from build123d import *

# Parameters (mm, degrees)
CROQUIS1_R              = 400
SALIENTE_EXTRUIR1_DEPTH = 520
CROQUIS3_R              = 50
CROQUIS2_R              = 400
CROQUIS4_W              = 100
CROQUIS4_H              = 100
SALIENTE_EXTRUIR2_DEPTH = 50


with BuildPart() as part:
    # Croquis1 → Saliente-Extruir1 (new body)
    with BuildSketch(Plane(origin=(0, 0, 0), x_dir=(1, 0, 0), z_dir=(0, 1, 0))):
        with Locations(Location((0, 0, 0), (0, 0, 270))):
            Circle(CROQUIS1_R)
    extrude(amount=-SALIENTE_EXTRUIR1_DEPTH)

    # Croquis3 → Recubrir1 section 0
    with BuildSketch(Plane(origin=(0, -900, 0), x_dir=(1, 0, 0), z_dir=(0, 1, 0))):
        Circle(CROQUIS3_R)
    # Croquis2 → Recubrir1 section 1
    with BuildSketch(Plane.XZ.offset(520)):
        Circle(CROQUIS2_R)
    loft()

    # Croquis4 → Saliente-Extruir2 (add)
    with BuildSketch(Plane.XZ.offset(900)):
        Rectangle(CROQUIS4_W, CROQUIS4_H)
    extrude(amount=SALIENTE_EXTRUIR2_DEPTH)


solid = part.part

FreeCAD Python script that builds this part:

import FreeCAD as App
import Part
import Sketcher
Q = App.Units.Quantity


def add_polygon(sketch, points):
    """Adds a closed chain of lines whose ends are joined by coincident constraints."""
    first, n = sketch.GeometryCount, len(points)
    for a, b in zip(points, points[1:] + points[:1]):
        sketch.addGeometry(Part.LineSegment(App.Vector(*a, 0), App.Vector(*b, 0)), False)
    for i in range(n):
        sketch.addConstraint(Sketcher.Constraint("Coincident", first + i, 2, first + (i + 1) % n, 1))

doc = App.newDocument("Part")
body = doc.addObject("PartDesign::Body", "Body")

# Sketch on XZ plane
sketch1 = body.newObject("Sketcher::SketchObject", "Sketch")
sketch1.AttachmentSupport = (doc.getObject("XZ_Plane"), [""])
sketch1.MapMode = "FlatFace"
sketch1.addGeometry(Part.Circle(App.Vector(0, 0, 0), App.Vector(0, 0, 1), 400), False)
sketch1.addConstraint([
    Sketcher.Constraint("Coincident", 0, 3, -1, 1),
    Sketcher.Constraint("Diameter", 0, Q("800 mm")),
])
pad1 = body.newObject("PartDesign::Pad", "Pad")
pad1.Profile = sketch1
pad1.Length = 520

# Sketch on XZ plane
sketch2 = body.newObject("Sketcher::SketchObject", "Sketch001")
sketch2.AttachmentSupport = (doc.getObject("XZ_Plane"), [""])
sketch2.MapMode = "FlatFace"
sketch2.AttachmentOffset = App.Placement(App.Vector(0, 0, 900), App.Rotation())
sketch2.addGeometry(Part.Circle(App.Vector(0, 0, 0), App.Vector(0, 0, 1), 50), False)
sketch2.addConstraint([
    Sketcher.Constraint("Coincident", 0, 3, -1, 1),
    Sketcher.Constraint("Diameter", 0, Q("100 mm")),
])

# Sketch on XZ plane
sketch3 = body.newObject("Sketcher::SketchObject", "Sketch002")
sketch3.AttachmentSupport = (doc.getObject("XZ_Plane"), [""])
sketch3.MapMode = "FlatFace"
sketch3.AttachmentOffset = App.Placement(App.Vector(0, 0, 520), App.Rotation())
sketch3.addGeometry(Part.Circle(App.Vector(0, 0, 0), App.Vector(0, 0, 1), 400), False)
sketch3.addConstraint([
    Sketcher.Constraint("Coincident", 0, 3, -1, 1),
    Sketcher.Constraint("Diameter", 0, Q("800 mm")),
])

additiveloft = body.newObject("PartDesign::AdditiveLoft", "AdditiveLoft")
additiveloft.Profile = sketch2
additiveloft.Sections = [sketch3]

# Sketch on XZ plane
sketch4 = body.newObject("Sketcher::SketchObject", "Sketch003")
sketch4.AttachmentSupport = (doc.getObject("XZ_Plane"), [""])
sketch4.MapMode = "FlatFace"
sketch4.AttachmentOffset = App.Placement(App.Vector(0, 0, 900), App.Rotation())
add_polygon(sketch4, [(-50, 50), (-50, -50), (50, -50), (50, 50)])  # lines 0-3
sketch4.addConstraint([
    Sketcher.Constraint("Vertical", 0),
    Sketcher.Constraint("Horizontal", 1),
    Sketcher.Constraint("Vertical", 2),
    Sketcher.Constraint("Horizontal", 3),
    Sketcher.Constraint("Symmetric", 0, 2, 2, 2, -1, 1),
    Sketcher.Constraint("Equal", 3, 0),
    Sketcher.Constraint("DistanceX", 1, 1, 1, 2, Q("100 mm")),
])
pad2 = body.newObject("PartDesign::Pad", "Pad001")
pad2.Profile = sketch4
pad2.Length = 50

doc.recompute()
